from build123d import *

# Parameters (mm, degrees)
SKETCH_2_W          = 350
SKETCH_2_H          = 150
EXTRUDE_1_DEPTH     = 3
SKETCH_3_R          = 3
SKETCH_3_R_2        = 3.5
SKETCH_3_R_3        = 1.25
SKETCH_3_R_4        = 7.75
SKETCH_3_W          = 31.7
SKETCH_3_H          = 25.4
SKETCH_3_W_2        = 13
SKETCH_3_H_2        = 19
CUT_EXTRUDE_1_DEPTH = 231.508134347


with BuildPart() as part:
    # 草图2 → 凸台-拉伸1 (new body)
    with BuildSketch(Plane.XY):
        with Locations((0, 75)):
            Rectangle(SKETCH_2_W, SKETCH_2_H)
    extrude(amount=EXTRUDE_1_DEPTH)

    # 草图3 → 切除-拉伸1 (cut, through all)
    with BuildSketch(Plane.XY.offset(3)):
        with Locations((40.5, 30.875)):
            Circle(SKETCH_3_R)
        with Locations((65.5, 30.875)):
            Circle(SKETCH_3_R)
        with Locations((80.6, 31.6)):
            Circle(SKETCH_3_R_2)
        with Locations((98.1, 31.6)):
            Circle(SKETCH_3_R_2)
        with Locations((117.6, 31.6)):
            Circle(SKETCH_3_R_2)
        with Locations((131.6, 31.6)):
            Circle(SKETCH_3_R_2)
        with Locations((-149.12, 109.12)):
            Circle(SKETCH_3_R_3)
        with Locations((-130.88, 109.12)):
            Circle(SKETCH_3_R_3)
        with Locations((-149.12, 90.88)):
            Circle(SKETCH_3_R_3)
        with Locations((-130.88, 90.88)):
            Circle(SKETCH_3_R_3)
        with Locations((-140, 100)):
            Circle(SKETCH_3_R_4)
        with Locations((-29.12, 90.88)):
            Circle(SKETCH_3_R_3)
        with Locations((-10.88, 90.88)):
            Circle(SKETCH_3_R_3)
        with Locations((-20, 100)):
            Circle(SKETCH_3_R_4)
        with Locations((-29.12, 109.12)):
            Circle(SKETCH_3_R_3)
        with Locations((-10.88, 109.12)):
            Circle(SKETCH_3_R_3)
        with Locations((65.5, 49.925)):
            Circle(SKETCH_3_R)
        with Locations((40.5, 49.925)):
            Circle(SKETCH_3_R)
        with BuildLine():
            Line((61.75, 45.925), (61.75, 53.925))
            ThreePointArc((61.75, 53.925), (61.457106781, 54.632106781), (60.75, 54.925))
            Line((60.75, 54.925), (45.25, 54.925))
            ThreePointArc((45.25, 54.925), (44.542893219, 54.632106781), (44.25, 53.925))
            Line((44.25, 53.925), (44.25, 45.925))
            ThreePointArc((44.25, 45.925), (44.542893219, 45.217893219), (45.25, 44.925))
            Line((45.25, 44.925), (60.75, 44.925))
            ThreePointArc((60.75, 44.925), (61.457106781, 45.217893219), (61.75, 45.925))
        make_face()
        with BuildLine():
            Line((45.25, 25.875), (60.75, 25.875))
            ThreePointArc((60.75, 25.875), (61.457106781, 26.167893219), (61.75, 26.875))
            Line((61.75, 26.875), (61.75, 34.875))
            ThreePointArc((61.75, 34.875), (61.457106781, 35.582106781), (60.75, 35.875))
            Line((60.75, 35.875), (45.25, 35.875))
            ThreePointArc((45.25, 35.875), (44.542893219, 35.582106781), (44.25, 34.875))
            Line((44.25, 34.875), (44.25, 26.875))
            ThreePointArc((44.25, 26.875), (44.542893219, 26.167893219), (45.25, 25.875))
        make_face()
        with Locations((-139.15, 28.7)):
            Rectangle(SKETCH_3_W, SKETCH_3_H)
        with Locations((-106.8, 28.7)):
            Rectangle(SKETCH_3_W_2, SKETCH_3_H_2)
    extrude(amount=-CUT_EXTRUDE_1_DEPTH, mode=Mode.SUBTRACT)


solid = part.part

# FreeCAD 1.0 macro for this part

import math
import FreeCAD as App
import Part
import Sketcher

V = App.Vector
Q = App.Units.Quantity

doc = App.newDocument("Part")
params = doc.addObject("Spreadsheet::Sheet", "Params")
for row, (alias, value) in enumerate([
    ("sketch1_width", "350 mm"),
    ("sketch1_height", "150 mm"),
    ("pad1_length", "3 mm"),
    ("sketch2_diameter", "6 mm"),
    ("sketch2_diameter2", "7 mm"),
    ("sketch2_radius", "1 mm"),
    ("sketch2_diameter3", "2.5 mm"),
    ("sketch2_diameter4", "15.5 mm"),
], start=1):
    params.set(f"A{row}", alias)
    params.set(f"B{row}", "=" + value)
    params.setAlias(f"B{row}", alias)

body = doc.addObject("PartDesign::Body", "Body")

sketch1 = body.newObject("Sketcher::SketchObject", "Sketch")
sketch1.AttachmentSupport = (doc.getObject("XY_Plane"), [""])
sketch1.MapMode = "FlatFace"
sketch1.addGeometry([
    Part.LineSegment(V(-175, 150, 0), V(-175, 0, 0)),
    Part.LineSegment(V(-175, 0, 0), V(175, 0, 0)),
    Part.LineSegment(V(175, 0, 0), V(175, 150, 0)),
    Part.LineSegment(V(175, 150, 0), V(-175, 150, 0)),
], False)
sketch1.addConstraint([
    Sketcher.Constraint("Coincident", 0, 2, 1, 1),
    Sketcher.Constraint("Coincident", 1, 2, 2, 1),
    Sketcher.Constraint("Coincident", 2, 2, 3, 1),
    Sketcher.Constraint("Coincident", 3, 2, 0, 1),
    Sketcher.Constraint("Vertical", 0),
    Sketcher.Constraint("Horizontal", 1),
    Sketcher.Constraint("Vertical", 2),
    Sketcher.Constraint("Horizontal", 3),
    Sketcher.Constraint("Symmetric", 0, 2, 1, 2, -1, 1),
    Sketcher.Constraint("DistanceX", 1, 1, 1, 2, Q("350 mm")),
    Sketcher.Constraint("DistanceY", 0, 2, 0, 1, Q("150 mm")),
])
sketch1.setExpression("Constraints[9]", "Params.sketch1_width")
sketch1.setExpression("Constraints[10]", "Params.sketch1_height")
pad1 = body.newObject("PartDesign::Pad", "Pad")
pad1.Profile = sketch1
pad1.setExpression("Length", "Params.pad1_length")

sketch2 = body.newObject("Sketcher::SketchObject", "Sketch001")
sketch2.AttachmentSupport = (doc.getObject("XY_Plane"), [""])
sketch2.MapMode = "FlatFace"
sketch2.AttachmentOffset = App.Placement(V(0, 0, 3), App.Rotation())
sketch2.addGeometry([
    Part.Circle(V(40.5, 30.875, 0), V(0, 0, 1), 3),
    Part.Circle(V(65.5, 30.875, 0), V(0, 0, 1), 3),
    Part.Circle(V(80.6, 31.6, 0), V(0, 0, 1), 3.5),
    Part.Circle(V(98.1, 31.6, 0), V(0, 0, 1), 3.5),
    Part.Circle(V(117.6, 31.6, 0), V(0, 0, 1), 3.5),
    Part.Circle(V(131.6, 31.6, 0), V(0, 0, 1), 3.5),
    Part.Circle(V(-149.12, 109.12, 0), V(0, 0, 1), 1.25),
    Part.Circle(V(-130.88, 109.12, 0), V(0, 0, 1), 1.25),
    Part.Circle(V(-149.12, 90.88, 0), V(0, 0, 1), 1.25),
    Part.Circle(V(-130.88, 90.88, 0), V(0, 0, 1), 1.25),
    Part.Circle(V(-140, 100, 0), V(0, 0, 1), 7.75),
    Part.Circle(V(-29.12, 90.88, 0), V(0, 0, 1), 1.25),
    Part.Circle(V(-10.88, 90.88, 0), V(0, 0, 1), 1.25),
    Part.Circle(V(-20, 100, 0), V(0, 0, 1), 7.75),
    Part.Circle(V(-29.12, 109.12, 0), V(0, 0, 1), 1.25),
    Part.Circle(V(-10.88, 109.12, 0), V(0, 0, 1), 1.25),
    Part.Circle(V(65.5, 49.925, 0), V(0, 0, 1), 3),
    Part.Circle(V(40.5, 49.925, 0), V(0, 0, 1), 3),
    Part.LineSegment(V(61.75, 45.925, 0), V(61.75, 53.925, 0)),
    Part.ArcOfCircle(Part.Circle(V(60.75, 53.925, 0), V(0, 0, 1), 1), math.radians(0), math.radians(90)),
    Part.LineSegment(V(60.75, 54.925, 0), V(45.25, 54.925, 0)),
    Part.ArcOfCircle(Part.Circle(V(45.25, 53.925, 0), V(0, 0, 1), 1), math.radians(90), math.radians(180)),
    Part.LineSegment(V(44.25, 53.925, 0), V(44.25, 45.925, 0)),
    Part.ArcOfCircle(Part.Circle(V(45.25, 45.925, 0), V(0, 0, 1), 1), math.radians(-180), math.radians(-90)),
    Part.LineSegment(V(45.25, 44.925, 0), V(60.75, 44.925, 0)),
    Part.ArcOfCircle(Part.Circle(V(60.75, 45.925, 0), V(0, 0, 1), 1), math.radians(-90), math.radians(0)),
    Part.LineSegment(V(45.25, 25.875, 0), V(60.75, 25.875, 0)),
    Part.ArcOfCircle(Part.Circle(V(60.75, 26.875, 0), V(0, 0, 1), 1), math.radians(-90), math.radians(0)),
    Part.LineSegment(V(61.75, 26.875, 0), V(61.75, 34.875, 0)),
    Part.ArcOfCircle(Part.Circle(V(60.75, 34.875, 0), V(0, 0, 1), 1), math.radians(0), math.radians(90)),
    Part.LineSegment(V(60.75, 35.875, 0), V(45.25, 35.875, 0)),
    Part.ArcOfCircle(Part.Circle(V(45.25, 34.875, 0), V(0, 0, 1), 1), math.radians(90), math.radians(180)),
    Part.LineSegment(V(44.25, 34.875, 0), V(44.25, 26.875, 0)),
    Part.ArcOfCircle(Part.Circle(V(45.25, 26.875, 0), V(0, 0, 1), 1), math.radians(-180), math.radians(-90)),
    Part.LineSegment(V(-155, 41.4, 0), V(-155, 16, 0)),
    Part.LineSegment(V(-155, 16, 0), V(-123.3, 16, 0)),
    Part.LineSegment(V(-123.3, 16, 0), V(-123.3, 41.4, 0)),
    Part.LineSegment(V(-123.3, 41.4, 0), V(-155, 41.4, 0)),
    Part.LineSegment(V(-113.3, 38.2, 0), V(-113.3, 19.2, 0)),
    Part.LineSegment(V(-113.3, 19.2, 0), V(-100.3, 19.2, 0)),
    Part.LineSegment(V(-100.3, 19.2, 0), V(-100.3, 38.2, 0)),
    Part.LineSegment(V(-100.3, 38.2, 0), V(-113.3, 38.2, 0)),
], False)
sketch2.addConstraint([
    Sketcher.Constraint("Tangent", 18, 2, 19, 1),
    Sketcher.Constraint("Tangent", 19, 2, 20, 1),
    Sketcher.Constraint("Tangent", 20, 2, 21, 1),
    Sketcher.Constraint("Tangent", 21, 2, 22, 1),
    Sketcher.Constraint("Tangent", 22, 2, 23, 1),
    Sketcher.Constraint("Tangent", 23, 2, 24, 1),
    Sketcher.Constraint("Tangent", 24, 2, 25, 1),
    Sketcher.Constraint("Tangent", 25, 2, 18, 1),
    Sketcher.Constraint("Tangent", 26, 2, 27, 1),
    Sketcher.Constraint("Tangent", 27, 2, 28, 1),
    Sketcher.Constraint("Tangent", 28, 2, 29, 1),
    Sketcher.Constraint("Tangent", 29, 2, 30, 1),
    Sketcher.Constraint("Tangent", 30, 2, 31, 1),
    Sketcher.Constraint("Tangent", 31, 2, 32, 1),
    Sketcher.Constraint("Tangent", 32, 2, 33, 1),
    Sketcher.Constraint("Tangent", 33, 2, 26, 1),
    Sketcher.Constraint("Coincident", 34, 2, 35, 1),
    Sketcher.Constraint("Coincident", 35, 2, 36, 1),
    Sketcher.Constraint("Coincident", 36, 2, 37, 1),
    Sketcher.Constraint("Coincident", 37, 2, 34, 1),
    Sketcher.Constraint("Coincident", 38, 2, 39, 1),
    Sketcher.Constraint("Coincident", 39, 2, 40, 1),
    Sketcher.Constraint("Coincident", 40, 2, 41, 1),
    Sketcher.Constraint("Coincident", 41, 2, 38, 1),
    Sketcher.Constraint("Vertical", 18),
    Sketcher.Constraint("Horizontal", 20),
    Sketcher.Constraint("Vertical", 22),
    Sketcher.Constraint("Horizontal", 24),
    Sketcher.Constraint("Horizontal", 26),
    Sketcher.Constraint("Vertical", 28),
    Sketcher.Constraint("Horizontal", 30),
    Sketcher.Constraint("Vertical", 32),
    Sketcher.Constraint("Vertical", 34),
    Sketcher.Constraint("Horizontal", 35),
    Sketcher.Constraint("Vertical", 36),
    Sketcher.Constraint("Horizontal", 37),
    Sketcher.Constraint("Vertical", 38),
    Sketcher.Constraint("Horizontal", 39),
    Sketcher.Constraint("Vertical", 40),
    Sketcher.Constraint("Horizontal", 41),
    Sketcher.Constraint("Equal", 0, 1),
    Sketcher.Constraint("Equal", 2, 3),
    Sketcher.Constraint("Equal", 3, 4),
    Sketcher.Constraint("Equal", 4, 5),
    Sketcher.Constraint("Equal", 6, 7),
    Sketcher.Constraint("Equal", 7, 8),
    Sketcher.Constraint("Equal", 8, 9),
    Sketcher.Constraint("Equal", 9, 11),
    Sketcher.Constraint("Equal", 11, 12),
    Sketcher.Constraint("Equal", 10, 13),
    Sketcher.Constraint("Equal", 12, 14),
    Sketcher.Constraint("Equal", 14, 15),
    Sketcher.Constraint("Equal", 1, 16),
    Sketcher.Constraint("Equal", 16, 17),
    Sketcher.Constraint("Equal", 19, 21),
    Sketcher.Constraint("Equal", 21, 23),
    Sketcher.Constraint("Equal", 23, 25),
    Sketcher.Constraint("Equal", 25, 27),
    Sketcher.Constraint("Equal", 27, 29),
    Sketcher.Constraint("Equal", 29, 31),
    Sketcher.Constraint("Equal", 31, 33),
    Sketcher.Constraint("Horizontal", 0, 3, 1, 3),
    Sketcher.Constraint("Horizontal", 2, 3, 3, 3),
    Sketcher.Constraint("Horizontal", 3, 3, 4, 3),
    Sketcher.Constraint("Horizontal", 4, 3, 5, 3),
    Sketcher.Constraint("Horizontal", 6, 3, 7, 3),
    Sketcher.Constraint("Horizontal", 8, 3, 9, 3),
    Sketcher.Constraint("Horizontal", 9, 3, 11, 3),
    Sketcher.Constraint("Horizontal", 11, 3, 12, 3),
    Sketcher.Constraint("Horizontal", 10, 3, 13, 3),
    Sketcher.Constraint("Horizontal", 7, 3, 14, 3),
    Sketcher.Constraint("Horizontal", 14, 3, 15, 3),
    Sketcher.Constraint("Horizontal", 16, 3, 17, 3),
    Sketcher.Constraint("Vertical", 6, 3, 8, 3),
    Sketcher.Constraint("Vertical", 7, 3, 9, 3),
    Sketcher.Constraint("Vertical", 11, 3, 14, 3),
    Sketcher.Constraint("Vertical", 12, 3, 15, 3),
    Sketcher.Constraint("Vertical", 1, 3, 16, 3),
    Sketcher.Constraint("Vertical", 0, 3, 17, 3),
    Sketcher.Constraint("Vertical", 25, 3, 27, 3),
    Sketcher.Constraint("Vertical", 23, 3, 31, 3),
    Sketcher.Constraint("Equal", 22, 28),
    Sketcher.Constraint("Diameter", 0, Q("6 mm")),
    Sketcher.Constraint("Diameter", 2, Q("7 mm")),
    Sketcher.Constraint("Radius", 19, Q("1 mm")),
    Sketcher.Constraint("Diameter", 6, Q("2.5 mm")),
    Sketcher.Constraint("Diameter", 10, Q("15.5 mm")),
    Sketcher.Constraint("DistanceX", 39, 1, 39, 2, Q("13 mm")),
    Sketcher.Constraint("DistanceY", 18, 1, 18, 2, Q("8 mm")),
    Sketcher.Constraint("DistanceY", 38, 2, 38, 1, Q("19 mm")),
    Sketcher.Constraint("DistanceX", 20, 2, 20, 1, Q("15.5 mm")),
    Sketcher.Constraint("DistanceX", 35, 1, 35, 2, Q("31.7 mm")),
    Sketcher.Constraint("DistanceY", 34, 2, 34, 1, Q("25.4 mm")),
    Sketcher.Constraint("DistanceX", 10, 3, -1, 1, Q("140 mm")),
    Sketcher.Constraint("DistanceY", -1, 1, 10, 3, Q("100 mm")),
    Sketcher.Constraint("DistanceX", 13, 3, -1, 1, Q("20 mm")),
    Sketcher.Constraint("DistanceX", 34, 2, -1, 1, Q("155 mm")),
    Sketcher.Constraint("DistanceY", -1, 1, 34, 2, Q("16 mm")),
    Sketcher.Constraint("DistanceX", 0, 3, 1, 3, Q("25 mm")),
    Sketcher.Constraint("DistanceX", 2, 3, 4, 3, Q("37 mm")),
    Sketcher.Constraint("DistanceX", 4, 3, 5, 3, Q("14 mm")),
    Sketcher.Constraint("DistanceX", 9, 3, 12, 3, Q("120 mm")),
    Sketcher.Constraint("DistanceY", 16, 3, 19, 3, Q("4 mm")),
    Sketcher.Constraint("DistanceY", 27, 3, 1, 3, Q("4 mm")),
    Sketcher.Constraint("DistanceX", 35, 2, 38, 2, Q("10 mm")),
    Sketcher.Constraint("DistanceX", -1, 1, 0, 3, Q("40.5 mm")),
    Sketcher.Constraint("DistanceX", -1, 1, 2, 3, Q("80.6 mm")),
    Sketcher.Constraint("DistanceY", -1, 1, 2, 3, Q("31.6 mm")),
    Sketcher.Constraint("DistanceX", -1, 1, 3, 3, Q("98.1 mm")),
    Sketcher.Constraint("DistanceY", -1, 1, 38, 2, Q("19.2 mm")),
    Sketcher.Constraint("DistanceX", 6, 3, -1, 1, Q("149.12 mm")),
    Sketcher.Constraint("DistanceY", -1, 1, 6, 3, Q("109.12 mm")),
    Sketcher.Constraint("DistanceX", 7, 3, -1, 1, Q("130.88 mm")),
    Sketcher.Constraint("DistanceY", -1, 1, 8, 3, Q("90.88 mm")),
    Sketcher.Constraint("DistanceX", 11, 3, -1, 1, Q("29.12 mm")),
    Sketcher.Constraint("DistanceX", -1, 1, 19, 3, Q("60.75 mm")),
    Sketcher.Constraint("DistanceY", 1, 3, 16, 3, Q("19.05 mm")),
    Sketcher.Constraint("DistanceY", -1, 1, 0, 3, Q("30.875 mm")),
])
sketch2.setExpression("Constraints[82]", "Params.sketch2_diameter")
sketch2.setExpression("Constraints[83]", "Params.sketch2_diameter2")
sketch2.setExpression("Constraints[84]", "Params.sketch2_radius")
sketch2.setExpression("Constraints[85]", "Params.sketch2_diameter3")
sketch2.setExpression("Constraints[86]", "Params.sketch2_diameter4")
pocket1 = body.newObject("PartDesign::Pocket", "Pocket")
pocket1.Profile = sketch2
pocket1.Type = "ThroughAll"

doc.recompute()
